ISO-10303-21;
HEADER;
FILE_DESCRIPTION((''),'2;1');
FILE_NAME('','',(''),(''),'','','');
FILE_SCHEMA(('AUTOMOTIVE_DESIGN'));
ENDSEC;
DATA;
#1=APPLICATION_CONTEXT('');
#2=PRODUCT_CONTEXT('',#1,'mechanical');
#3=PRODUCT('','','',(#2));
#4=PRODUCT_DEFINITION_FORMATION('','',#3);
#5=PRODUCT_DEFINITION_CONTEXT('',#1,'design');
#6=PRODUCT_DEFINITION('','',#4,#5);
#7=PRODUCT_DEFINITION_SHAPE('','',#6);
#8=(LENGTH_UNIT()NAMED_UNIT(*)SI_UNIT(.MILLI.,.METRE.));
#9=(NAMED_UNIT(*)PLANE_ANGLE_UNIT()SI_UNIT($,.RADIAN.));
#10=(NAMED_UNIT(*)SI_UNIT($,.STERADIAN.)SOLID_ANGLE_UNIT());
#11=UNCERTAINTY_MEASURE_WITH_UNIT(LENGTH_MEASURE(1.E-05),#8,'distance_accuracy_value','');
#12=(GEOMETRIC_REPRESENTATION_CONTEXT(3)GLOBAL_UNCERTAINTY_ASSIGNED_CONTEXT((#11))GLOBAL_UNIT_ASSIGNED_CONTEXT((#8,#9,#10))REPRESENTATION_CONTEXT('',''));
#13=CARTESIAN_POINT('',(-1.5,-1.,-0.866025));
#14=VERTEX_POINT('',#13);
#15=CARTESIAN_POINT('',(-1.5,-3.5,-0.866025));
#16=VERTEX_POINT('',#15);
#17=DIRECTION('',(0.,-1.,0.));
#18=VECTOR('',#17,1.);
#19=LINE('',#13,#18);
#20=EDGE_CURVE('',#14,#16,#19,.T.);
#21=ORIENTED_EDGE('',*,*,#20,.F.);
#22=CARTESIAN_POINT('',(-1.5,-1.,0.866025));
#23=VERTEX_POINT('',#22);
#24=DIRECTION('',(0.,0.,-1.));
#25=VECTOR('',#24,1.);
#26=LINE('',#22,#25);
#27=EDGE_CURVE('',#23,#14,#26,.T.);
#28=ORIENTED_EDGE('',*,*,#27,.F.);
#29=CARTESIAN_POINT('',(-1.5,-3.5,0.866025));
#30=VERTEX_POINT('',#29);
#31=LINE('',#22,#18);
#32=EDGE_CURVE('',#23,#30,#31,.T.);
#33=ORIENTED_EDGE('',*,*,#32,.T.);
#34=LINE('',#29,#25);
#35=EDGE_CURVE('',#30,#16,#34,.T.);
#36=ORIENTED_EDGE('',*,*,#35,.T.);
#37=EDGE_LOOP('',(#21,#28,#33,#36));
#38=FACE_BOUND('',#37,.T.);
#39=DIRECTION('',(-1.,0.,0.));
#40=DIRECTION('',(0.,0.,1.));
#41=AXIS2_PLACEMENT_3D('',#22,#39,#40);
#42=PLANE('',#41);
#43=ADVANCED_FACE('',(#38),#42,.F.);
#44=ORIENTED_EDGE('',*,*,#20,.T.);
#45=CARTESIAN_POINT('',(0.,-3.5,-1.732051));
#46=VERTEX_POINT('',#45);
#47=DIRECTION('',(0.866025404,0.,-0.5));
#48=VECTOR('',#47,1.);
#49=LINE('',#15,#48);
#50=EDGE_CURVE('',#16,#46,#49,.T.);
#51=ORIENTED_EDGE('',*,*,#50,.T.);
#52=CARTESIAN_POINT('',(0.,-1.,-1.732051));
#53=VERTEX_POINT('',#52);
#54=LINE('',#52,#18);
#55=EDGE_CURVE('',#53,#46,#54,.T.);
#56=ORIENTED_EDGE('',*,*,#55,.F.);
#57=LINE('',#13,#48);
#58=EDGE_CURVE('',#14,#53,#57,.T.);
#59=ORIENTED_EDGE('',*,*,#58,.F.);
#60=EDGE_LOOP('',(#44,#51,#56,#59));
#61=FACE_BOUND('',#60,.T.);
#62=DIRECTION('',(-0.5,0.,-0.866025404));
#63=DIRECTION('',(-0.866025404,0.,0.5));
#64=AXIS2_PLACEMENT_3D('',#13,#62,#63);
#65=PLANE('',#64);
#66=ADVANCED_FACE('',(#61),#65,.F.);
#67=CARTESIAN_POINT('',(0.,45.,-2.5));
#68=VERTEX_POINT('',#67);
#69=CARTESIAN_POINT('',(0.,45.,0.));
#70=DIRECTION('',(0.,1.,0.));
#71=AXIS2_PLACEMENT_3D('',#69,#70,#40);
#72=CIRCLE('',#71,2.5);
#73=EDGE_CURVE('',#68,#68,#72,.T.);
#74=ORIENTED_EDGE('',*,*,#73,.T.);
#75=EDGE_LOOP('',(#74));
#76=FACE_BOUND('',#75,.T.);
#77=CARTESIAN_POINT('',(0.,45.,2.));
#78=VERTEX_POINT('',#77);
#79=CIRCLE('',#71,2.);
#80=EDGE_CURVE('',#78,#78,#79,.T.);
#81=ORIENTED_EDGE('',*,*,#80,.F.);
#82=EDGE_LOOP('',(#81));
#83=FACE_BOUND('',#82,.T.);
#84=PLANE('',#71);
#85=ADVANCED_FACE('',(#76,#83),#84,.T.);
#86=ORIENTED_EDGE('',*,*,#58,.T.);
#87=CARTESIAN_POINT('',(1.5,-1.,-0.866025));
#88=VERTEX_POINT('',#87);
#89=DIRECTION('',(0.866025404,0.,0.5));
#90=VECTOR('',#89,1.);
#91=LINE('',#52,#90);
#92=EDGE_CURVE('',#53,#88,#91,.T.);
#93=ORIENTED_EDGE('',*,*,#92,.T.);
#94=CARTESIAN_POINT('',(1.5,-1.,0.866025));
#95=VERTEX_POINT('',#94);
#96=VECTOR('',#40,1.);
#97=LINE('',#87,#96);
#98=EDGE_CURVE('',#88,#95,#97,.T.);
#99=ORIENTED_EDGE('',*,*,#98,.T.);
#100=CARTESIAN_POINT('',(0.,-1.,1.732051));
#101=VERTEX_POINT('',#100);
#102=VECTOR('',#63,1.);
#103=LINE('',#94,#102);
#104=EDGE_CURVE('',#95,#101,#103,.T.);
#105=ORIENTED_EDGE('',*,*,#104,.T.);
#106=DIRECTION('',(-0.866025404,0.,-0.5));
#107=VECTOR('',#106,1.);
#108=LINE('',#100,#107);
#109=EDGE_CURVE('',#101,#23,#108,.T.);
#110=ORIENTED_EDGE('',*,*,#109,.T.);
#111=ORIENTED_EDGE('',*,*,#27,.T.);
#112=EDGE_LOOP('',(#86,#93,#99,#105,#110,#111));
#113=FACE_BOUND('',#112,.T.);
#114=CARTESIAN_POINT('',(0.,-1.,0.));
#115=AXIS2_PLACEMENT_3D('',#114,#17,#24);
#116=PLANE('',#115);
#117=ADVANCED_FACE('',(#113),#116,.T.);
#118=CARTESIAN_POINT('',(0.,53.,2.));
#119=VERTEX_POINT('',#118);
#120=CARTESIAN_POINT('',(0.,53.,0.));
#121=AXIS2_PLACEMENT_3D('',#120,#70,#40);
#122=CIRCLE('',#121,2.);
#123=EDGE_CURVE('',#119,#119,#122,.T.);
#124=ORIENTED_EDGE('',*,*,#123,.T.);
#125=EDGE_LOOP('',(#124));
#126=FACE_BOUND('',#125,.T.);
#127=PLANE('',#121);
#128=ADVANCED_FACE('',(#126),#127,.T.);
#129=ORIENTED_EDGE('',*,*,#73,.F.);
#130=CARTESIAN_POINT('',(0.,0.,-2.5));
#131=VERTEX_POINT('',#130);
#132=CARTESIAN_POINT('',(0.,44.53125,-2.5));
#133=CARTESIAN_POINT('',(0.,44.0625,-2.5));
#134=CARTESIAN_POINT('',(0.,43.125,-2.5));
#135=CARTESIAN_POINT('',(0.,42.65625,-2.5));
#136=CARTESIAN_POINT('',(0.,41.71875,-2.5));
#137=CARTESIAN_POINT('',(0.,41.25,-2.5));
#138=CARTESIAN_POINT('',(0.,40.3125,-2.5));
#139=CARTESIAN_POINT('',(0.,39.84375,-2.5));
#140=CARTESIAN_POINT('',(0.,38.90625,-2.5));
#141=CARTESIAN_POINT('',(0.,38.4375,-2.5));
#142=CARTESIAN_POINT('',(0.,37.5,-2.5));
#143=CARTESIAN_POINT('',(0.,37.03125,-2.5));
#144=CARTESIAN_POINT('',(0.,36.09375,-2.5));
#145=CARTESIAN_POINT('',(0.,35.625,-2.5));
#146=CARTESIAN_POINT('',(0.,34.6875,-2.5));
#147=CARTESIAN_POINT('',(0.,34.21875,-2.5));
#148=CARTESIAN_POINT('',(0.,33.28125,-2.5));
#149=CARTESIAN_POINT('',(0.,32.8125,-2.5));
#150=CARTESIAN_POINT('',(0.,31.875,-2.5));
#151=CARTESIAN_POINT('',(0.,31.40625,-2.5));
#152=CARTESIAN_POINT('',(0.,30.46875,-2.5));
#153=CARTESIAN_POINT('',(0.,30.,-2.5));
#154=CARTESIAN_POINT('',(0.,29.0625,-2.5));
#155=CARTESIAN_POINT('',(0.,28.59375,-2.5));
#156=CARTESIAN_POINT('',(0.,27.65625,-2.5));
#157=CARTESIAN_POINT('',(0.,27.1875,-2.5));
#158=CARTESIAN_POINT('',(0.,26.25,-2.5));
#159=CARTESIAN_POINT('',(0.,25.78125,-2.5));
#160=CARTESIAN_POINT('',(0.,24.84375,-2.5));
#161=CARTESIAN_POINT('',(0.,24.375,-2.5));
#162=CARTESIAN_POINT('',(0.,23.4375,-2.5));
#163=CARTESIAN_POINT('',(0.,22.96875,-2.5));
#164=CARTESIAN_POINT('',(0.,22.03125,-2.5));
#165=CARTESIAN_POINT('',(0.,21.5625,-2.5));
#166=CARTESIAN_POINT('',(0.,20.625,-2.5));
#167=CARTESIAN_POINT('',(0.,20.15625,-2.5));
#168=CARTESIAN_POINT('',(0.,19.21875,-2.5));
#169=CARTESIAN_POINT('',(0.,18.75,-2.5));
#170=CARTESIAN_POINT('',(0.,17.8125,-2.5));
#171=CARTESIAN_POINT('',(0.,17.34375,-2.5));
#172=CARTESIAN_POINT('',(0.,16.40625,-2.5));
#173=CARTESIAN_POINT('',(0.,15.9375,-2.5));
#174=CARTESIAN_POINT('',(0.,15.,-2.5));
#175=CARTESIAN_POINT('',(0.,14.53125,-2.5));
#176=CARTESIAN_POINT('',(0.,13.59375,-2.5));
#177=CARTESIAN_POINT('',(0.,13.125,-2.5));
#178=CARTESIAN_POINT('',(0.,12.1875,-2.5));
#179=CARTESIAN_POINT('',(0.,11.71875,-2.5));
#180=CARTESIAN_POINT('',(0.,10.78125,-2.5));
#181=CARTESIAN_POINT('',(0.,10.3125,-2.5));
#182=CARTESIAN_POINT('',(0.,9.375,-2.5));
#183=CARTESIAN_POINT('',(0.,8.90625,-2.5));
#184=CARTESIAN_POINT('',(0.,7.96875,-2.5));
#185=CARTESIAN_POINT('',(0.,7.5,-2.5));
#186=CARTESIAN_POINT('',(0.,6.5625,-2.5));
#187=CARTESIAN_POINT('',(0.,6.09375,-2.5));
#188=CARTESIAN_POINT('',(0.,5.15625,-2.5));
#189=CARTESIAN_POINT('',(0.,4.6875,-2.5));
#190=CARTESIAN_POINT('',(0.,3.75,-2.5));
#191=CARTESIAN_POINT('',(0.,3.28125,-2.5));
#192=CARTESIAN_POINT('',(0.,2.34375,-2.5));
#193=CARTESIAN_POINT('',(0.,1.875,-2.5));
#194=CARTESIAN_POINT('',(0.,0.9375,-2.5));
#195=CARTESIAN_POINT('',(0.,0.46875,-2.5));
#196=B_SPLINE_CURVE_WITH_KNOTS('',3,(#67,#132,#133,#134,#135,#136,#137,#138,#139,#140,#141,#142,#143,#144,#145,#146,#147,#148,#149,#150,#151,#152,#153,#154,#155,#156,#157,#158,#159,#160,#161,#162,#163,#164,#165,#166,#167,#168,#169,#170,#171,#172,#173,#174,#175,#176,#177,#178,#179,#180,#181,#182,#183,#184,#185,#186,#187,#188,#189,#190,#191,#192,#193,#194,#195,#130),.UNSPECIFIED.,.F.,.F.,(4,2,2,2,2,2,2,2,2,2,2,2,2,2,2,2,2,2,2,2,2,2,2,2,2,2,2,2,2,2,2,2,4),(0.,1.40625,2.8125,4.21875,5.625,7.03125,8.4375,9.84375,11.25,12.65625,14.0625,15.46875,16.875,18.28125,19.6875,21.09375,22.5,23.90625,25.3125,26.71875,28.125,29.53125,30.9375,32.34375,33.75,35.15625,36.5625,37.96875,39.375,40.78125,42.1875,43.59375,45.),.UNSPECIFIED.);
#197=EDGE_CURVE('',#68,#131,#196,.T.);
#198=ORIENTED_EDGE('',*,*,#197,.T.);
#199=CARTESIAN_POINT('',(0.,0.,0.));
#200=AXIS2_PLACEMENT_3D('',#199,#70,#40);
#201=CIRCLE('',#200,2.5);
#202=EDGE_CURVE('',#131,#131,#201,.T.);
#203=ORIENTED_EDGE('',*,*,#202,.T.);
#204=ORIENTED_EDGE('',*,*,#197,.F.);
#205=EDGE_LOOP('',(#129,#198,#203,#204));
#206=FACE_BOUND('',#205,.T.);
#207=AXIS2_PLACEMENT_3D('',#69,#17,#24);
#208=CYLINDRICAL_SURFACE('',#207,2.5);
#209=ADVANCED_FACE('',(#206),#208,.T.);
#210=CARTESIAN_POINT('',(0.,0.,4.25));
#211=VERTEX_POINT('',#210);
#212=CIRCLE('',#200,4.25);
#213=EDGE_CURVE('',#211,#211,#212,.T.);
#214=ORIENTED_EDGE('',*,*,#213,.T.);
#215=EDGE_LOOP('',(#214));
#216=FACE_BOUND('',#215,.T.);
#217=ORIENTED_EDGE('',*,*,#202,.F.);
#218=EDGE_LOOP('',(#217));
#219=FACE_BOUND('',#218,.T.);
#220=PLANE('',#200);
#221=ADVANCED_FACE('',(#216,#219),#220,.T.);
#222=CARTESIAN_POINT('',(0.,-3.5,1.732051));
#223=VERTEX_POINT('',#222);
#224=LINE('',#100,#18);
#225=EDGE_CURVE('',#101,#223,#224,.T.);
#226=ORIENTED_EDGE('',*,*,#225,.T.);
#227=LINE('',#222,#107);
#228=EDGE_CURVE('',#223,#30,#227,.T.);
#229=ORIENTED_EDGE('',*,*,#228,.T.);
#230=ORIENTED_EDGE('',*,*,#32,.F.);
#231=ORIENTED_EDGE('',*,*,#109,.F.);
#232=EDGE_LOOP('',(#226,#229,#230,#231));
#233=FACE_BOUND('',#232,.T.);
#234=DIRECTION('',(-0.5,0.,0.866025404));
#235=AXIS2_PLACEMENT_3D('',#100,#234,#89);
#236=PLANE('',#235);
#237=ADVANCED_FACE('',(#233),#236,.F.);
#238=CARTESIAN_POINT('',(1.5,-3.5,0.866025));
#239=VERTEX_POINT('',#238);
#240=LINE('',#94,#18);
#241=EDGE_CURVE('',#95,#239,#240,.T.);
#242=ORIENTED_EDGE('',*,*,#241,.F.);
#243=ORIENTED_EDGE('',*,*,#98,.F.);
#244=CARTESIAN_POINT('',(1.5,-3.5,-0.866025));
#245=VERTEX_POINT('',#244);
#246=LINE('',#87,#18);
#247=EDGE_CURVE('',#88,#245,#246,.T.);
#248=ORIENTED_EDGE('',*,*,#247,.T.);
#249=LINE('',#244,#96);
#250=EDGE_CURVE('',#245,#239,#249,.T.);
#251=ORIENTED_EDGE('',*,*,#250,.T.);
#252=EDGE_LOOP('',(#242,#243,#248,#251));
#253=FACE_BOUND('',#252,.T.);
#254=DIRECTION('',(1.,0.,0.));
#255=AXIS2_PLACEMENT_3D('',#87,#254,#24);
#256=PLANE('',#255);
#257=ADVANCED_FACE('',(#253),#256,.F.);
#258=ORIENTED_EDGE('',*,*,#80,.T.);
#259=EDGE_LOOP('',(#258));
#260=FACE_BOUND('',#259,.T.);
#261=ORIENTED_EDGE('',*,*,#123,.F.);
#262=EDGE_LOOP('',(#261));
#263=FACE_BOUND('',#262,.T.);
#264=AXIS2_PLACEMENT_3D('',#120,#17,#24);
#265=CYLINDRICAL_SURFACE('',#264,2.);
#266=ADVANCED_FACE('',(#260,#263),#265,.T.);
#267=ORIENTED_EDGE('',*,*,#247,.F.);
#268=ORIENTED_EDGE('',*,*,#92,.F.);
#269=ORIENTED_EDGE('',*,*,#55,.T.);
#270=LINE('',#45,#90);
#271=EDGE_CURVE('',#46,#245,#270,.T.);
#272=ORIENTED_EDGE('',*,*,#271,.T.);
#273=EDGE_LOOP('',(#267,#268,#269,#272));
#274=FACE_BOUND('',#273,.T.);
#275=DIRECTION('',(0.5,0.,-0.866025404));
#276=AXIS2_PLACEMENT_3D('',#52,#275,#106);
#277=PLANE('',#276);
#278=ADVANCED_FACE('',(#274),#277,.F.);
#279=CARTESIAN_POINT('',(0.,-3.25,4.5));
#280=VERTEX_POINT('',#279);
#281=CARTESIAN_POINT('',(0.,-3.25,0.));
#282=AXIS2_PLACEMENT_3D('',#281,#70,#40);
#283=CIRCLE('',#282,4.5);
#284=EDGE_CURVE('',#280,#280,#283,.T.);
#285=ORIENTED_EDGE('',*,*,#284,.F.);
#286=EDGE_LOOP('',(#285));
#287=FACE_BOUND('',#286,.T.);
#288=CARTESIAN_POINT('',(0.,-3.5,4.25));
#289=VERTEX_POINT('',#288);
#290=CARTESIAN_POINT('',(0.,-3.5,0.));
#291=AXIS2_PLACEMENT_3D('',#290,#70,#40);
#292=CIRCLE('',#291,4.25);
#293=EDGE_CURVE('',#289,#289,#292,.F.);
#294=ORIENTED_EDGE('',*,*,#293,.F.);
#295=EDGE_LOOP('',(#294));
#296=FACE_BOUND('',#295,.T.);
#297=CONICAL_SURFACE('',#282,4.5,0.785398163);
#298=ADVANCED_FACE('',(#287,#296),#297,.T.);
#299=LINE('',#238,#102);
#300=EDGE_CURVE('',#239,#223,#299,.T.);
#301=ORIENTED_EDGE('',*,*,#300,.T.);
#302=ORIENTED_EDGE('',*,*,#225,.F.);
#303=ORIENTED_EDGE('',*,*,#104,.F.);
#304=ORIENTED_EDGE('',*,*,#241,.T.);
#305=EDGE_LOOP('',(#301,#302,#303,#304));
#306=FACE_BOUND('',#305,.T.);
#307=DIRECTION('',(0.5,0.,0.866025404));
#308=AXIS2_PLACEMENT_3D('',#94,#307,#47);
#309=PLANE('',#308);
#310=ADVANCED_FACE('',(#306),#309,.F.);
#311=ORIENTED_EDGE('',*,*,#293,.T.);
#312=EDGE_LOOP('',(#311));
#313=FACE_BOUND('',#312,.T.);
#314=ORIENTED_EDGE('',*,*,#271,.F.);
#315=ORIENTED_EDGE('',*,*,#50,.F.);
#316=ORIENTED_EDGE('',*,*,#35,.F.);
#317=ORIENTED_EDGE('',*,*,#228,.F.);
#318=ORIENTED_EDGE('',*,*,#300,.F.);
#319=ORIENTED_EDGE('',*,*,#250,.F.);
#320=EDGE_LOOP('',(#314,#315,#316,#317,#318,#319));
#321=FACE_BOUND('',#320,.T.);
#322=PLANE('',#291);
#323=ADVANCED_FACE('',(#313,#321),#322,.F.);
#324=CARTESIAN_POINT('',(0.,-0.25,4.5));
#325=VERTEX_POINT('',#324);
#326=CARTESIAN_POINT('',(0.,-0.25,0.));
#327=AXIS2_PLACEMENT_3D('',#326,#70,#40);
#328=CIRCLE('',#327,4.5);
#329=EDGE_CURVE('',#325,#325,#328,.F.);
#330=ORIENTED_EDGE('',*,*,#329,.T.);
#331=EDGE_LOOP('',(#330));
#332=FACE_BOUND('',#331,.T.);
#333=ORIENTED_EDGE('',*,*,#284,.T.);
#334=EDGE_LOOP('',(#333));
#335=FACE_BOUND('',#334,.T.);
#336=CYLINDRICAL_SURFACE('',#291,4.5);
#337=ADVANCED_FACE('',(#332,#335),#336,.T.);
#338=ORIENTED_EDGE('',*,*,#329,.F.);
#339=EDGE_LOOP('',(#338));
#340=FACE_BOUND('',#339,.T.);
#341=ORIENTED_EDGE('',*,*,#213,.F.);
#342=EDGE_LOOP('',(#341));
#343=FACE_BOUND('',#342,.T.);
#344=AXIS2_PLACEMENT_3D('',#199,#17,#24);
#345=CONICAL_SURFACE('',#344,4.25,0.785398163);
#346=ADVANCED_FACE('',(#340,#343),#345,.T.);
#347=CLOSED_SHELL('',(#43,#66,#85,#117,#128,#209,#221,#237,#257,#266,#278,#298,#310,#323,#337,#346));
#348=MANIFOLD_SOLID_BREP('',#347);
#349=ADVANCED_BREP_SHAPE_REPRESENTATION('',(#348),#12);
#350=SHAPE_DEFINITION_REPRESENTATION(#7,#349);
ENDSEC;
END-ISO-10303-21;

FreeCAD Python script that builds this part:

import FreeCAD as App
import Part
import Sketcher

V = App.Vector
Q = App.Units.Quantity


def edges_at(feature, points):
    """Names of the edges that pass closest to the given points."""
    edges = feature.Shape.Edges
    near = lambda p: min(range(len(edges)), key=lambda i: edges[i].distToShape(Part.Vertex(*p))[0])
    return sorted({f"Edge{near(p) + 1}" for p in points})


def add_polygon(sketch, points):
    """Adds a closed chain of lines whose ends are joined by coincident constraints."""
    first, n = sketch.GeometryCount, len(points)
    for a, b in zip(points, points[1:] + points[:1]):
        sketch.addGeometry(Part.LineSegment(App.Vector(*a, 0), App.Vector(*b, 0)), False)
    for i in range(n):
        sketch.addConstraint(Sketcher.Constraint("Coincident", first + i, 2, first + (i + 1) % n, 1))

doc = App.newDocument("Part")
body = doc.addObject("PartDesign::Body", "Body")

# Sketch on XZ plane
sketch1 = body.newObject("Sketcher::SketchObject", "Sketch")
sketch1.AttachmentSupport = (doc.getObject("XZ_Plane"), [""])
sketch1.MapMode = "FlatFace"
sketch1.addGeometry(Part.Circle(V(0, 0, 0), V(0, 0, 1), 4.5), False)
sketch1.addConstraint(Sketcher.Constraint("Coincident", 0, 3, -1, 1))
sketch1.addConstraint(Sketcher.Constraint("Diameter", 0, Q("9 mm")))
pad1 = body.newObject("PartDesign::Pad", "Pad")
pad1.Profile = sketch1
pad1.Length = 3.5

# Sketch on XZ plane
sketch2 = body.newObject("Sketcher::SketchObject", "Sketch001")
sketch2.AttachmentSupport = (doc.getObject("XZ_Plane"), [""])
sketch2.MapMode = "FlatFace"
sketch2.addGeometry(Part.Circle(V(0, 0, 0), V(0, 0, 1), 2.5), False)
sketch2.addConstraint(Sketcher.Constraint("Coincident", 0, 3, -1, 1))
sketch2.addConstraint(Sketcher.Constraint("Diameter", 0, Q("5 mm")))
pad2 = body.newObject("PartDesign::Pad", "Pad001")
pad2.Profile = sketch2
pad2.Length = 45
pad2.Reversed = True

# Sketch on XZ plane
sketch3 = body.newObject("Sketcher::SketchObject", "Sketch002")
sketch3.AttachmentSupport = (doc.getObject("XZ_Plane"), [""])
sketch3.MapMode = "FlatFace"
sketch3.AttachmentOffset = App.Placement(V(0, 0, -45), App.Rotation())
sketch3.addGeometry(Part.Circle(V(0, 0, 0), V(0, 0, 1), 2), False)
sketch3.addConstraint(Sketcher.Constraint("Coincident", 0, 3, -1, 1))
sketch3.addConstraint(Sketcher.Constraint("Diameter", 0, Q("4 mm")))
pad3 = body.newObject("PartDesign::Pad", "Pad002")
pad3.Profile = sketch3
pad3.Length = 8
pad3.Reversed = True

# Sketch on XZ plane
sketch4 = body.newObject("Sketcher::SketchObject", "Sketch003")
sketch4.AttachmentSupport = (doc.getObject("XZ_Plane"), [""])
sketch4.MapMode = "FlatFace"
sketch4.AttachmentOffset = App.Placement(V(0, 0, 3.5), App.Rotation())
add_polygon(sketch4, [(1.5, -0.866025), (1.5, 0.866025), (0, 1.732051), (-1.5, 0.866025), (-1.5, -0.866025), (0, -1.732051)])  # lines 0-5
sketch4.addConstraint(Sketcher.Constraint("Vertical", 0))
sketch4.addConstraint(Sketcher.Constraint("Vertical", 3))
sketch4.addConstraint(Sketcher.Constraint("Symmetric", 0, 2, 3, 2, -1, 1))
sketch4.addConstraint(Sketcher.Constraint("Symmetric", 1, 2, 4, 2, -1, 1))
sketch4.addConstraint(Sketcher.Constraint("PointOnObject", 1, 2, -2))
sketch4.addConstraint(Sketcher.Constraint("Parallel", 2, 5))
sketch4.addConstraint(Sketcher.Constraint("Horizontal", 0, 2, 2, 2))
sketch4.addConstraint(Sketcher.Constraint("Angle", 1, Q("150 deg")))
sketch4.addConstraint(Sketcher.Constraint("DistanceX", 2, 2, 0, 2, Q("3 mm")))
sketch4.addConstraint(Sketcher.Constraint("DistanceY", 0, 1, 0, 2, Q("1.732051 mm")))
pocket1 = body.newObject("PartDesign::Pocket", "Pocket")
pocket1.Profile = sketch4
pocket1.Length = 2.5
doc.recompute()

chamfer = body.newObject("PartDesign::Chamfer", "Chamfer")
chamfer.Base = (pocket1, edges_at(pocket1, [(0, 0, -4.5), (0, -3.5, -4.5)]))
chamfer.Size = 0.25

doc.recompute()
